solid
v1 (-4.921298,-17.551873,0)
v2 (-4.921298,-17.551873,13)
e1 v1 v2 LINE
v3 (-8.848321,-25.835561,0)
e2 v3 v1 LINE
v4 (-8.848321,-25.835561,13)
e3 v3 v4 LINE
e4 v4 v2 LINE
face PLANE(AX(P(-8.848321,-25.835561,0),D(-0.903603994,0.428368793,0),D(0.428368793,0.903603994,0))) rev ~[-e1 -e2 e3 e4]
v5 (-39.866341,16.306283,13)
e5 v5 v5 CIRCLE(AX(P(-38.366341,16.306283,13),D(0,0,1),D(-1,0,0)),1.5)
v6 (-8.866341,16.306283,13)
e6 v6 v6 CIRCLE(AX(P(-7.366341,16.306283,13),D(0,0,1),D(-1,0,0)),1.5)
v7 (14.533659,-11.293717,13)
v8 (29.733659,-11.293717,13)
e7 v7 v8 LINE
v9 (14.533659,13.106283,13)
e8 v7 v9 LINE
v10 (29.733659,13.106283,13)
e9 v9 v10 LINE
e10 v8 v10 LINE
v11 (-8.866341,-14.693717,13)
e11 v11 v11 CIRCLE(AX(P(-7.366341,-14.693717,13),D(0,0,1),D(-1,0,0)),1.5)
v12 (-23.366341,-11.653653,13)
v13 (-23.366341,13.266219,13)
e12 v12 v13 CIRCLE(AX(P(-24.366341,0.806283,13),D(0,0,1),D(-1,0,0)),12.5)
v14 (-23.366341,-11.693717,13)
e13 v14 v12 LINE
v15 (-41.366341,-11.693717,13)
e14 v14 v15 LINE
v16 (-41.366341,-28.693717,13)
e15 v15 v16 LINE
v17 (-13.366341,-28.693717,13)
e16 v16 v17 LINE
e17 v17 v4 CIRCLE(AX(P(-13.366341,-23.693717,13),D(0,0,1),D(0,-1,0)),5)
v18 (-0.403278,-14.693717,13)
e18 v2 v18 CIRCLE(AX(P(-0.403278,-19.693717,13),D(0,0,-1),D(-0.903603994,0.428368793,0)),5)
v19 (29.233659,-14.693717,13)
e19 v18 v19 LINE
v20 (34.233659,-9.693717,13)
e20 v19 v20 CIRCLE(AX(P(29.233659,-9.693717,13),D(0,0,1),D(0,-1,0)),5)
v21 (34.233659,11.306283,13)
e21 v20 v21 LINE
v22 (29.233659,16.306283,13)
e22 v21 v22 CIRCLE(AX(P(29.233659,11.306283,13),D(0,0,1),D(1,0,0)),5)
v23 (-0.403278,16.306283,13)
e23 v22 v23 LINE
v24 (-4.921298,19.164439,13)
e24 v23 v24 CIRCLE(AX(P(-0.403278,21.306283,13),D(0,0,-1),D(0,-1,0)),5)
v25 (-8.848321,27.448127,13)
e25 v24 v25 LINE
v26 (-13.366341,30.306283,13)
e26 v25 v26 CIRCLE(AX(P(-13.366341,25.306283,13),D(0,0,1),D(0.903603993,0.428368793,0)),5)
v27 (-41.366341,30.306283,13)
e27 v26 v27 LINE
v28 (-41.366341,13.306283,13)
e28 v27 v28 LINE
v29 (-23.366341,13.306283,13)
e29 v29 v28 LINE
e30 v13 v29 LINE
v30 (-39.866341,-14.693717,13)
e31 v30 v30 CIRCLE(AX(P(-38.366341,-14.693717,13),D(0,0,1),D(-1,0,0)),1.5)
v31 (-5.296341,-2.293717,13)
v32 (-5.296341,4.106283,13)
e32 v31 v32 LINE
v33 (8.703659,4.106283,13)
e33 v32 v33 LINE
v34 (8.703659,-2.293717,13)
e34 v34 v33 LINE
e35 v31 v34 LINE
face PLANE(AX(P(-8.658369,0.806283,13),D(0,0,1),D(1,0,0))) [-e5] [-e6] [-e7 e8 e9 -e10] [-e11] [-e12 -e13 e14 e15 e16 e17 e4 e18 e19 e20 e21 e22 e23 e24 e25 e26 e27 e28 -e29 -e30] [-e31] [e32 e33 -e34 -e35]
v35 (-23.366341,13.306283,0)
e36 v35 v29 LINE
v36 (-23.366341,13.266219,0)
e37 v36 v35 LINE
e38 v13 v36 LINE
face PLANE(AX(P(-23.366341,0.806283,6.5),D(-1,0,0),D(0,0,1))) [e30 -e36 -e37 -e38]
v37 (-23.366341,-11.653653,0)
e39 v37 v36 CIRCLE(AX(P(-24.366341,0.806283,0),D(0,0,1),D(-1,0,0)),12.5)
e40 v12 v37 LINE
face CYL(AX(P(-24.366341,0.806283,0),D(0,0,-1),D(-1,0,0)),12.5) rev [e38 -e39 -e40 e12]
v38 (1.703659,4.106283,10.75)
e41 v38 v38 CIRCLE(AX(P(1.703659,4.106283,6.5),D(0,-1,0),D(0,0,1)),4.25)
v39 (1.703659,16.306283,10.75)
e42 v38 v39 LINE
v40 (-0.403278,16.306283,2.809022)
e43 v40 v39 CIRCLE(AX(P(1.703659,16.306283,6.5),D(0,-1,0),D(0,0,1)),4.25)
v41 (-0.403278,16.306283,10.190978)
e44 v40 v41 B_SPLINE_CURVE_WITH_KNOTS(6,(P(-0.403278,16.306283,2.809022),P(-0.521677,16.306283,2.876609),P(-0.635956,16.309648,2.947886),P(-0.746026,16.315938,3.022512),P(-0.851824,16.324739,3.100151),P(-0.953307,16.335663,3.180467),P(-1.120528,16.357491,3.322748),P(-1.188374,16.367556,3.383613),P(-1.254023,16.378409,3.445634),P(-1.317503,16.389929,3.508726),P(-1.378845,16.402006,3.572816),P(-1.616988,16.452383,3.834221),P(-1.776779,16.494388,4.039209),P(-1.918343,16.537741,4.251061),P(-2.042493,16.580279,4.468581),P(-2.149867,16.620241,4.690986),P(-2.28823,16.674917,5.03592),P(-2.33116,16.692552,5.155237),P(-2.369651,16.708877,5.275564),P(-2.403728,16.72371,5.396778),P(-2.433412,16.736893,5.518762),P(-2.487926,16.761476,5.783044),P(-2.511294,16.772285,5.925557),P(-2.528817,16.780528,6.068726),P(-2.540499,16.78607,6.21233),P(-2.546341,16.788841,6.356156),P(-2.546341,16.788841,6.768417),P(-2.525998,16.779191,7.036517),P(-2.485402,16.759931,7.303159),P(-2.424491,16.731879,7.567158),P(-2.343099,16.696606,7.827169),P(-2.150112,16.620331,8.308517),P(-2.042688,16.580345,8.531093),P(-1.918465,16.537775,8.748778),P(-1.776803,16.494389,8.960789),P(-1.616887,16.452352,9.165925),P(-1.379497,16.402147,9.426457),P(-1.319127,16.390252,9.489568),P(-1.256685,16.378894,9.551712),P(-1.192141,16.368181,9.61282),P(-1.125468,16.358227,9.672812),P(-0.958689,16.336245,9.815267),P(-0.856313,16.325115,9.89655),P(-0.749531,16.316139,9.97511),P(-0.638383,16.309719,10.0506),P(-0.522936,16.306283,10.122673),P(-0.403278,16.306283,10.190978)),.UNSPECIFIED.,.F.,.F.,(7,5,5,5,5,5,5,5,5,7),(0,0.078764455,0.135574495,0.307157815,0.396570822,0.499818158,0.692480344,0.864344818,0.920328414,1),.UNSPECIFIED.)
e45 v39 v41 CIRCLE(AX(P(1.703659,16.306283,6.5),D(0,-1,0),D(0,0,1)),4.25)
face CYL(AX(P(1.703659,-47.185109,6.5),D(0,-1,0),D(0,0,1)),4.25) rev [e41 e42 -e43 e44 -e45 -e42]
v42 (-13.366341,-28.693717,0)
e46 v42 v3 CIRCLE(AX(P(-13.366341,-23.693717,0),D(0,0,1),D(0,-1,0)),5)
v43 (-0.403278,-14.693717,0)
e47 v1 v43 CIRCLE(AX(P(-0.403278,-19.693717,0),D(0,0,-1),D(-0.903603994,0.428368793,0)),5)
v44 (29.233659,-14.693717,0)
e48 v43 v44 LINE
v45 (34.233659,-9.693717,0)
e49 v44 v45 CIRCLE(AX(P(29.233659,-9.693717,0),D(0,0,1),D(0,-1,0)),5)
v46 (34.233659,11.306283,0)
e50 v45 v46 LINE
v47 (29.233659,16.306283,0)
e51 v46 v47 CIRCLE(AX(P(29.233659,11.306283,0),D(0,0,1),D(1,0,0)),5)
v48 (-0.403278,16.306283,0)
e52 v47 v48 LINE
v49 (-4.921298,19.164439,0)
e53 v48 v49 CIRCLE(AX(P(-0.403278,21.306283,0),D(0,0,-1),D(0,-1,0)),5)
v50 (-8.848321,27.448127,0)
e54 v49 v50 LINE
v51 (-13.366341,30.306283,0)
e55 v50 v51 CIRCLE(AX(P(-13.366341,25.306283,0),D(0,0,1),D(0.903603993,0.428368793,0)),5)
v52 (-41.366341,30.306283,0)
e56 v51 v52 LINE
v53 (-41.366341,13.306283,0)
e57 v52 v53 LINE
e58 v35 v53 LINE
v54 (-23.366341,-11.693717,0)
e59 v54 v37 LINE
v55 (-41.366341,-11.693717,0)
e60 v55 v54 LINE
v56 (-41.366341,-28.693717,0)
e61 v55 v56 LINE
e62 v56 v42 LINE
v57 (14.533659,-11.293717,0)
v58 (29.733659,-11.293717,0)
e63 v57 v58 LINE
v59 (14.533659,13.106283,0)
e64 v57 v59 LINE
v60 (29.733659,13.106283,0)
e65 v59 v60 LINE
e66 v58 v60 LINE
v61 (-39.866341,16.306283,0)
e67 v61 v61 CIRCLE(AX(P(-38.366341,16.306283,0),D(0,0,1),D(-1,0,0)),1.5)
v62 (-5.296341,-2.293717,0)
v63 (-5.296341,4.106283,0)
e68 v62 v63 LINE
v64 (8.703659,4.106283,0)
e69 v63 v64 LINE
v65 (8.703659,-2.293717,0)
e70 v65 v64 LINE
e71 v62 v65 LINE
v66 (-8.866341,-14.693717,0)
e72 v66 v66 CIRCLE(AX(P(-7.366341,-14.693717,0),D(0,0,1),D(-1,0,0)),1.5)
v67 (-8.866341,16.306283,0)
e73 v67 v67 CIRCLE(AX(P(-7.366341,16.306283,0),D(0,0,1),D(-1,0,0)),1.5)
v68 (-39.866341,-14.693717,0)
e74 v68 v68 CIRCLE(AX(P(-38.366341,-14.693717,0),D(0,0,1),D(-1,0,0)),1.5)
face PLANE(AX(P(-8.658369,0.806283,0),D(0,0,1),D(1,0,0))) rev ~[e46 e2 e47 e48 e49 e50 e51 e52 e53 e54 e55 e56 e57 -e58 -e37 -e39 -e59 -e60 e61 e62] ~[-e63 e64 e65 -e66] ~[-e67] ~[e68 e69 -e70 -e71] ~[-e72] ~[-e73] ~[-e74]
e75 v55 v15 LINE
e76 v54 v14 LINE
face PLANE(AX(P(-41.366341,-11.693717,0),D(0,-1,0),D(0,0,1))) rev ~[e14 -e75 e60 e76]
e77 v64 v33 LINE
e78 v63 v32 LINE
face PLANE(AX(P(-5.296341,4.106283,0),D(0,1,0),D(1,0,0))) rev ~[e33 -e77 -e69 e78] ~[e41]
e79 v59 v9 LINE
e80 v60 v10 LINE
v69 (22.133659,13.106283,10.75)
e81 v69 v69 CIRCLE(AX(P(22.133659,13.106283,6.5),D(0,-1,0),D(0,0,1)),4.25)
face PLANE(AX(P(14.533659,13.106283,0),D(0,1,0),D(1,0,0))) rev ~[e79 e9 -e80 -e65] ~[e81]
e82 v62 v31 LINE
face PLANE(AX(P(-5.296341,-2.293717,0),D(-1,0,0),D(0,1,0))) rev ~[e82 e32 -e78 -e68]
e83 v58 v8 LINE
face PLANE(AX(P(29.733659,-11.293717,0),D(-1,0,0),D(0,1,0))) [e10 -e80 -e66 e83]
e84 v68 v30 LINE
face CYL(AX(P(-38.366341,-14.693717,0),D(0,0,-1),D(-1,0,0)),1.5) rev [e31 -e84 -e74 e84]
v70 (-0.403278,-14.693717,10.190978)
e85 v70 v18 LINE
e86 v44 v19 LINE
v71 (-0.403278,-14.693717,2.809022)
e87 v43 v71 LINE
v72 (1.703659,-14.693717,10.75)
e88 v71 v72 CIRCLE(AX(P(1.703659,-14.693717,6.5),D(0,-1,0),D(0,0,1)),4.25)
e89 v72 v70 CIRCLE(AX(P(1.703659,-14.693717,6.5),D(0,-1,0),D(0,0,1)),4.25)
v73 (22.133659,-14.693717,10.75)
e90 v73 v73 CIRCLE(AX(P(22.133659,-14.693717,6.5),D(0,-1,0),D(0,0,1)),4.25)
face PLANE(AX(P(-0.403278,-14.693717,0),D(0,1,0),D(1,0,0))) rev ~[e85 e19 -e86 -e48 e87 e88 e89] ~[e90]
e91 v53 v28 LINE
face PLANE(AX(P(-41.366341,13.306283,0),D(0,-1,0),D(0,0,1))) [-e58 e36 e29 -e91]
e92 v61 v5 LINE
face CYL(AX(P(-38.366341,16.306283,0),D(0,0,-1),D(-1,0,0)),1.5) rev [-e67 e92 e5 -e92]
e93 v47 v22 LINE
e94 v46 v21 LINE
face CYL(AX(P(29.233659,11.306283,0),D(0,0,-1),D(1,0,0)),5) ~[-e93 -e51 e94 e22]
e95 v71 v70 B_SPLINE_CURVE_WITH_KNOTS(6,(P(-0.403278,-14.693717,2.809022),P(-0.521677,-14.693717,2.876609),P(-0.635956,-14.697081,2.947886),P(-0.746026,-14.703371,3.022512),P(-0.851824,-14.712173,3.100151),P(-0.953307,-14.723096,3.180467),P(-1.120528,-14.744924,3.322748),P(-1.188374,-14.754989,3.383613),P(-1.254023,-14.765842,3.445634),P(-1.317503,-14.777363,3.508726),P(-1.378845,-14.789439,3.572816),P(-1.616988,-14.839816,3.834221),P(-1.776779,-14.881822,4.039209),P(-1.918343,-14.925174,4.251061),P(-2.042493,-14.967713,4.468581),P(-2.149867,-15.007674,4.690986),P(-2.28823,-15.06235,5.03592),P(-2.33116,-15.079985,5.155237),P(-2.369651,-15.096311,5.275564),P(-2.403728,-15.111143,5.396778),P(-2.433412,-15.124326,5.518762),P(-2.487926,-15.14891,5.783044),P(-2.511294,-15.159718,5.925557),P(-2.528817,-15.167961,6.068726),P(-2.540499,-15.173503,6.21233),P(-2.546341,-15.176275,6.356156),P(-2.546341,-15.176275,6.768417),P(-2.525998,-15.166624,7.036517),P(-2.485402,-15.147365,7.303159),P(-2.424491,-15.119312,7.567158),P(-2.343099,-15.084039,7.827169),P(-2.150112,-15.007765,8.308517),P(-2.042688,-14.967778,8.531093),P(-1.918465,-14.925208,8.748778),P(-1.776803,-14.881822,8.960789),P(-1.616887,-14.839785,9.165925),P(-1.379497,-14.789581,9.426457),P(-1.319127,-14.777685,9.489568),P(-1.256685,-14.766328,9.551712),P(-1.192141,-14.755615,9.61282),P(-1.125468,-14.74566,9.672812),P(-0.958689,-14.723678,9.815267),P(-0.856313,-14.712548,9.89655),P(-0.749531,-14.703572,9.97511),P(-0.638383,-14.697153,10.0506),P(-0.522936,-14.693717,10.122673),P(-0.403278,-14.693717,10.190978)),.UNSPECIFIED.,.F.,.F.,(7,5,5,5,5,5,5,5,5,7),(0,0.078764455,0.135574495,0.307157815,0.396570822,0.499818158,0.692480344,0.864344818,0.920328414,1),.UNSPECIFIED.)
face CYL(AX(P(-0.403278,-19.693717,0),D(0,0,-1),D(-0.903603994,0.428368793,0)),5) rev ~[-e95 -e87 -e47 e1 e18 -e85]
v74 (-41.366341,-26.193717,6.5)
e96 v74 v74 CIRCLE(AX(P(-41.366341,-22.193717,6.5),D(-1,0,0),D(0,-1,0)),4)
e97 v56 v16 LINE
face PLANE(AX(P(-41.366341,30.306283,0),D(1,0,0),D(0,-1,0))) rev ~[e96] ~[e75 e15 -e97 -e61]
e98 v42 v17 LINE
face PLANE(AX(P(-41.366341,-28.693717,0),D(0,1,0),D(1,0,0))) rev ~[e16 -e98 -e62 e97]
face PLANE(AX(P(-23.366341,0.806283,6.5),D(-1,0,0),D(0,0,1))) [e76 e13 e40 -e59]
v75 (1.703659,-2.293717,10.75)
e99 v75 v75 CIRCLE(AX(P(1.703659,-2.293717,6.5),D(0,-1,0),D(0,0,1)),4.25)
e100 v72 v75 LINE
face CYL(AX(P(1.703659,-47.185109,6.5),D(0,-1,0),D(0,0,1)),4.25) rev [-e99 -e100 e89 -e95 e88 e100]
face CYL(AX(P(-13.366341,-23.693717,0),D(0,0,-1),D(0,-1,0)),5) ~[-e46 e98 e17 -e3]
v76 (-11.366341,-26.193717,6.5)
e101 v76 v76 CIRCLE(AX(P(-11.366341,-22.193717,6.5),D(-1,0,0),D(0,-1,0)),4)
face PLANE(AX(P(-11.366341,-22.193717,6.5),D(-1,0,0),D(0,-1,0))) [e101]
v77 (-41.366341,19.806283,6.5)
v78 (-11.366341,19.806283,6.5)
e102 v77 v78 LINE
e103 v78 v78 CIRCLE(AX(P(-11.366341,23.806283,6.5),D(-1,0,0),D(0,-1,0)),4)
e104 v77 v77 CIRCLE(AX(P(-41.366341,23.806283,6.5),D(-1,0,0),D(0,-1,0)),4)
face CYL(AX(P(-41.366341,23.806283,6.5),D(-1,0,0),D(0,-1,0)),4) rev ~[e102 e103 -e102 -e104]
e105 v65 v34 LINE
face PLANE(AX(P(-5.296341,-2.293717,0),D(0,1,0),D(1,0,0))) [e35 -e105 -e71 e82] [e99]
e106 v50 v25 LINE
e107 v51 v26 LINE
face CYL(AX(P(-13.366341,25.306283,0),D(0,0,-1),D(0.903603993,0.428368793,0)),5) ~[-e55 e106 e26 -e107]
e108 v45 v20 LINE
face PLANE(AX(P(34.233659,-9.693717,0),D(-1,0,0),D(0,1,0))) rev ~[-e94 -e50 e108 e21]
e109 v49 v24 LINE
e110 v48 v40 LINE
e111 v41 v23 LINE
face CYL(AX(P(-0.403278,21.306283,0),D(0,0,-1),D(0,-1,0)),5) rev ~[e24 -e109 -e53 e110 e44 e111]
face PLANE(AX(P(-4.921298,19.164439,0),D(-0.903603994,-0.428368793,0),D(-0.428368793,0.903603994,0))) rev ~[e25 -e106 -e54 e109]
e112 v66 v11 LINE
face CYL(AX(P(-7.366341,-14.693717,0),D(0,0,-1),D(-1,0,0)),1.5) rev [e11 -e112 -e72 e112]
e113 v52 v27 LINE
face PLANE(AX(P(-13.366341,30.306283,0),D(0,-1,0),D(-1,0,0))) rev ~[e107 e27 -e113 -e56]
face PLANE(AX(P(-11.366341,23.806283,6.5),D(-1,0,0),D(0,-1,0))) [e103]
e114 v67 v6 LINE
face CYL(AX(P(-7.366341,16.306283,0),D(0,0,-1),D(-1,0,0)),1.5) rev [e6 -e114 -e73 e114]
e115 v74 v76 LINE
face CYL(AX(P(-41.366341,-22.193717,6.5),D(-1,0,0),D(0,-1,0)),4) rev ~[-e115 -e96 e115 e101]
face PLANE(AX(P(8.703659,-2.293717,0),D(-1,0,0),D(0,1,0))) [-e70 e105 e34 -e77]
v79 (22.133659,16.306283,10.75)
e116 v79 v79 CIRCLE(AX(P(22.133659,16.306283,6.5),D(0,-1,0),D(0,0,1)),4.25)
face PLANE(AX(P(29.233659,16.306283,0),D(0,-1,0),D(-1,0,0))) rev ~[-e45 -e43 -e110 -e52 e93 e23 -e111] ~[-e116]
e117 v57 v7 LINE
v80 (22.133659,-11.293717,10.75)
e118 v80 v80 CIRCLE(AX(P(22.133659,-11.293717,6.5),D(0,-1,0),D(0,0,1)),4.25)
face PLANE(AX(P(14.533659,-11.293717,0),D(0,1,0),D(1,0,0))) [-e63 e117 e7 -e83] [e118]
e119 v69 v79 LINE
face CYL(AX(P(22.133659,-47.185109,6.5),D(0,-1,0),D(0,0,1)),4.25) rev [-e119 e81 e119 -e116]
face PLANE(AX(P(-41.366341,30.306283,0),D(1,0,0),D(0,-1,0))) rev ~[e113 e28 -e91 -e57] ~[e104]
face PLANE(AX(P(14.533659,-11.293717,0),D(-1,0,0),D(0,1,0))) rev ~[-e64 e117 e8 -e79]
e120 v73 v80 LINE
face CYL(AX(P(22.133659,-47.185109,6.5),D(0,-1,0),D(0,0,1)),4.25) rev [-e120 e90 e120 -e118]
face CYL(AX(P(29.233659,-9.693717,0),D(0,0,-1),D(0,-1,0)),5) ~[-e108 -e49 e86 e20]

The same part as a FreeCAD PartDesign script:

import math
import FreeCAD as App
import Part
import Sketcher

V = App.Vector

doc = App.newDocument("Part")
body = doc.addObject("PartDesign::Body", "Body")

# Sketch on XY plane
sketch1 = body.newObject("Sketcher::SketchObject", "Sketch")
sketch1.AttachmentSupport = (doc.getObject("XY_Plane"), [""])
sketch1.MapMode = "FlatFace"
sketch1.addGeometry([
    Part.LineSegment(V(-41.4, 30.3, 0), V(-41.4, -28.7, 0)),  # 0
    Part.LineSegment(V(-41.4, -28.7, 0), V(-13.4, -28.7, 0)),  # 1
    Part.ArcOfCircle(Part.Circle(V(-13.4, -23.7, 0), V(0, 0, 1), 5), math.radians(-90), math.radians(-25)),  # 2
    Part.LineSegment(V(-8.8, -25.8, 0), V(-4.9, -17.6, 0)),  # 3
    Part.ArcOfCircle(Part.Circle(V(-0.4, -19.7, 0), V(0, 0, 1), 5), math.radians(90), math.radians(155)),  # 4
    Part.LineSegment(V(-0.4, -14.7, 0), V(29.2, -14.7, 0)),  # 5
    Part.ArcOfCircle(Part.Circle(V(29.2, -9.7, 0), V(0, 0, 1), 5), math.radians(-90), math.radians(0)),  # 6
    Part.LineSegment(V(34.2, -9.7, 0), V(34.2, 11.3, 0)),  # 7
    Part.ArcOfCircle(Part.Circle(V(29.2, 11.3, 0), V(0, 0, 1), 5), math.radians(0), math.radians(90)),  # 8
    Part.LineSegment(V(29.2, 16.3, 0), V(-0.4, 16.3, 0)),  # 9
    Part.ArcOfCircle(Part.Circle(V(-0.4, 21.3, 0), V(0, 0, 1), 5), math.radians(-155), math.radians(-90)),  # 10
    Part.LineSegment(V(-4.9, 19.2, 0), V(-8.8, 27.4, 0)),  # 11
    Part.ArcOfCircle(Part.Circle(V(-13.4, 25.3, 0), V(0, 0, 1), 5), math.radians(25), math.radians(90)),  # 12
    Part.LineSegment(V(-13.4, 30.3, 0), V(-41.4, 30.3, 0)),  # 13
    Part.Circle(V(-38.4, -14.7, 0), V(0, 0, 1), 1.5),  # 14
    Part.Circle(V(-7.4, -14.7, 0), V(0, 0, 1), 1.5),  # 15
    Part.Circle(V(-24.4, 0.8, 0), V(0, 0, 1), 12.5),  # 16
    Part.Circle(V(-38.4, 16.3, 0), V(0, 0, 1), 1.5),  # 17
    Part.Circle(V(-7.4, 16.3, 0), V(0, 0, 1), 1.5),  # 18
    Part.LineSegment(V(8.7, -2.3, 0), V(-5.3, -2.3, 0)),  # 19
    Part.LineSegment(V(-5.3, -2.3, 0), V(-5.3, 4.1, 0)),  # 20
    Part.LineSegment(V(-5.3, 4.1, 0), V(8.7, 4.1, 0)),  # 21
    Part.LineSegment(V(8.7, 4.1, 0), V(8.7, -2.3, 0)),  # 22
    Part.LineSegment(V(29.7, -11.3, 0), V(14.5, -11.3, 0)),  # 23
    Part.LineSegment(V(14.5, -11.3, 0), V(14.5, 13.1, 0)),  # 24
    Part.LineSegment(V(14.5, 13.1, 0), V(29.7, 13.1, 0)),  # 25
    Part.LineSegment(V(29.7, 13.1, 0), V(29.7, -11.3, 0)),  # 26
], False)
sketch1.addConstraint([
    Sketcher.Constraint("Coincident", 0, 2, 1, 1),
    Sketcher.Constraint("Tangent", 1, 2, 2, 1),
    Sketcher.Constraint("Tangent", 2, 2, 3, 1),
    Sketcher.Constraint("Tangent", 3, 2, 4, 2),
    Sketcher.Constraint("Tangent", 4, 1, 5, 1),
    Sketcher.Constraint("Tangent", 5, 2, 6, 1),
    Sketcher.Constraint("Tangent", 6, 2, 7, 1),
    Sketcher.Constraint("Tangent", 7, 2, 8, 1),
    Sketcher.Constraint("Tangent", 8, 2, 9, 1),
    Sketcher.Constraint("Tangent", 9, 2, 10, 2),
    Sketcher.Constraint("Tangent", 10, 1, 11, 1),
    Sketcher.Constraint("Tangent", 11, 2, 12, 1),
    Sketcher.Constraint("Tangent", 12, 2, 13, 1),
    Sketcher.Constraint("Coincident", 13, 2, 0, 1),
    Sketcher.Constraint("Coincident", 19, 2, 20, 1),
    Sketcher.Constraint("Coincident", 20, 2, 21, 1),
    Sketcher.Constraint("Coincident", 21, 2, 22, 1),
    Sketcher.Constraint("Coincident", 22, 2, 19, 1),
    Sketcher.Constraint("Coincident", 23, 2, 24, 1),
    Sketcher.Constraint("Coincident", 24, 2, 25, 1),
    Sketcher.Constraint("Coincident", 25, 2, 26, 1),
    Sketcher.Constraint("Coincident", 26, 2, 23, 1),
    Sketcher.Constraint("Vertical", 0),
    Sketcher.Constraint("Horizontal", 1),
    Sketcher.Constraint("Horizontal", 5),
    Sketcher.Constraint("Vertical", 7),
    Sketcher.Constraint("Horizontal", 9),
    Sketcher.Constraint("Horizontal", 13),
    Sketcher.Constraint("Horizontal", 19),
    Sketcher.Constraint("Vertical", 20),
    Sketcher.Constraint("Horizontal", 21),
    Sketcher.Constraint("Vertical", 22),
    Sketcher.Constraint("Horizontal", 23),
    Sketcher.Constraint("Vertical", 24),
    Sketcher.Constraint("Horizontal", 25),
    Sketcher.Constraint("Vertical", 26),
    Sketcher.Constraint("Equal", 2, 4),
    Sketcher.Constraint("Equal", 4, 6),
    Sketcher.Constraint("Equal", 6, 8),
    Sketcher.Constraint("Equal", 8, 10),
    Sketcher.Constraint("Equal", 10, 12),
    Sketcher.Constraint("Equal", 14, 15),
    Sketcher.Constraint("Equal", 15, 17),
    Sketcher.Constraint("Equal", 17, 18),
    Sketcher.Constraint("Horizontal", 14, 3, 15, 3),
    Sketcher.Constraint("Horizontal", 17, 3, 18, 3),
    Sketcher.Constraint("Horizontal", 15, 3, 4, 1),
    Sketcher.Constraint("Horizontal", 18, 3, 8, 2),
    Sketcher.Constraint("Vertical", 4, 3, 10, 3),
    Sketcher.Constraint("Vertical", 2, 3, 12, 3),
    Sketcher.Constraint("Vertical", 14, 3, 17, 3),
    Sketcher.Constraint("Vertical", 15, 3, 18, 3),
    Sketcher.Constraint("Vertical", 3, 2, 10, 1),
    Sketcher.Constraint("Diameter", 14, 3.0),
    Sketcher.Constraint("Diameter", 16, 25.0),
    Sketcher.Constraint("Radius", 2, 5.0),
    Sketcher.Constraint("DistanceX", 1, 1, 1, 2, 28.0),
    Sketcher.Constraint("DistanceX", 19, 2, 19, 1, 14.0),
    Sketcher.Constraint("DistanceY", 0, 2, 0, 1, 59.0),
    Sketcher.Constraint("DistanceY", 7, 1, 7, 2, 21.0),
    Sketcher.Constraint("DistanceX", 23, 2, 23, 1, 15.2),
    Sketcher.Constraint("DistanceY", 20, 1, 20, 2, 6.4),
    Sketcher.Constraint("DistanceY", 24, 1, 24, 2, 24.4),
    Sketcher.Constraint("DistanceX", 14, 3, 2, 3, 25.0),
    Sketcher.Constraint("DistanceX", 2, 3, 15, 3, 6.0),
    Sketcher.Constraint("DistanceX", 14, 3, 16, 3, 14.0),
    Sketcher.Constraint("DistanceY", 23, 2, 22, 2, 9.0),
    Sketcher.Constraint("DistanceX", 2, 3, 6, 3, 42.6),
    Sketcher.Constraint("DistanceY", 14, 3, 16, 3, 15.5),
    Sketcher.Constraint("DistanceY", 15, 3, 19, 2, 12.4),
    Sketcher.Constraint("DistanceX", 23, 2, 6, 3, 14.7),
    Sketcher.Constraint("DistanceX", 15, 3, 19, 2, 2.07),
    Sketcher.Constraint("DistanceX", 3, 2, -1, 1, 4.921298),
    Sketcher.Constraint("DistanceX", 5, 1, 5, 2, 29.636937),
    Sketcher.Constraint("DistanceY", 2, 2, -1, 1, 25.835561),
])
pad1 = body.newObject("PartDesign::Pad", "Pad")
pad1.Profile = sketch1
pad1.Length = 13

# Sketch on YZ plane
sketch2 = body.newObject("Sketcher::SketchObject", "Sketch001")
sketch2.AttachmentSupport = (doc.getObject("YZ_Plane"), [""])
sketch2.MapMode = "FlatFace"
sketch2.AttachmentOffset = App.Placement(V(0, 0, -41.366341), App.Rotation())
sketch2.addGeometry([
    Part.Circle(V(23.8, 6.5, 0), V(0, 0, 1), 4),
    Part.Circle(V(-22.2, 6.5, 0), V(0, 0, 1), 4),
], False)
sketch2.addConstraint([
    Sketcher.Constraint("Equal", 0, 1),
    Sketcher.Constraint("Horizontal", 0, 3, 1, 3),
    Sketcher.Constraint("Diameter", 0, 8.0),
    Sketcher.Constraint("DistanceX", 1, 3, 0, 3, 46.0),
    Sketcher.Constraint("DistanceY", -1, 1, 0, 3, 6.5),
    Sketcher.Constraint("DistanceX", -1, 1, 0, 3, 23.806283),
])
pocket1 = body.newObject("PartDesign::Pocket", "Pocket")
pocket1.Profile = sketch2
pocket1.Length = 30
pocket1.Reversed = True

# Sketch on YZ plane
sketch3 = body.newObject("Sketcher::SketchObject", "Sketch002")
sketch3.AttachmentSupport = (doc.getObject("YZ_Plane"), [""])
sketch3.MapMode = "FlatFace"
sketch3.AttachmentOffset = App.Placement(V(0, 0, -41.366341), App.Rotation())
sketch3.addGeometry([
    Part.LineSegment(V(13, 0, 0), V(-12, 0, 0)),
    Part.LineSegment(V(-12, 0, 0), V(-12, 13, 0)),
    Part.LineSegment(V(-12, 13, 0), V(13, 13, 0)),
    Part.LineSegment(V(13, 13, 0), V(13, 0, 0)),
], False)
sketch3.addConstraint([
    Sketcher.Constraint("Coincident", 0, 2, 1, 1),
    Sketcher.Constraint("Coincident", 1, 2, 2, 1),
    Sketcher.Constraint("Coincident", 2, 2, 3, 1),
    Sketcher.Constraint("Coincident", 3, 2, 0, 1),
    Sketcher.Constraint("Horizontal", 0),
    Sketcher.Constraint("Vertical", 1),
    Sketcher.Constraint("Horizontal", 2),
    Sketcher.Constraint("Vertical", 3),
    Sketcher.Constraint("PointOnObject", 0, 2, -1),
    Sketcher.Constraint("DistanceX", 0, 2, 0, 1, 25.0),
    Sketcher.Constraint("DistanceY", 1, 1, 1, 2, 13.0),
    Sketcher.Constraint("DistanceX", 0, 2, -1, 1, 11.693717),
])
pocket2 = body.newObject("PartDesign::Pocket", "Pocket001")
pocket2.Profile = sketch3
pocket2.Length = 18
pocket2.Reversed = True

# Sketch on XZ plane
sketch4 = body.newObject("Sketcher::SketchObject", "Sketch003")
sketch4.AttachmentSupport = (doc.getObject("XZ_Plane"), [""])
sketch4.MapMode = "FlatFace"
sketch4.AttachmentOffset = App.Placement(V(0, 0, -16.306283), App.Rotation())
sketch4.addGeometry([
    Part.Circle(V(22.1, 6.5, 0), V(0, 0, 1), 4.2),
    Part.Circle(V(1.7, 6.5, 0), V(0, 0, 1), 4.2),
], False)
sketch4.addConstraint([
    Sketcher.Constraint("Equal", 0, 1),
    Sketcher.Constraint("Horizontal", 0, 3, 1, 3),
    Sketcher.Constraint("Diameter", 0, 8.5),
    Sketcher.Constraint("DistanceY", -1, 1, 0, 3, 6.5),
    Sketcher.Constraint("DistanceX", 1, 3, 0, 3, 20.43),
    Sketcher.Constraint("DistanceX", -1, 1, 0, 3, 22.133659),
])
pocket3 = body.newObject("PartDesign::Pocket", "Pocket002")
pocket3.Profile = sketch4
pocket3.Type = "ThroughAll"
pocket3.Midplane = True

doc.recompute()
